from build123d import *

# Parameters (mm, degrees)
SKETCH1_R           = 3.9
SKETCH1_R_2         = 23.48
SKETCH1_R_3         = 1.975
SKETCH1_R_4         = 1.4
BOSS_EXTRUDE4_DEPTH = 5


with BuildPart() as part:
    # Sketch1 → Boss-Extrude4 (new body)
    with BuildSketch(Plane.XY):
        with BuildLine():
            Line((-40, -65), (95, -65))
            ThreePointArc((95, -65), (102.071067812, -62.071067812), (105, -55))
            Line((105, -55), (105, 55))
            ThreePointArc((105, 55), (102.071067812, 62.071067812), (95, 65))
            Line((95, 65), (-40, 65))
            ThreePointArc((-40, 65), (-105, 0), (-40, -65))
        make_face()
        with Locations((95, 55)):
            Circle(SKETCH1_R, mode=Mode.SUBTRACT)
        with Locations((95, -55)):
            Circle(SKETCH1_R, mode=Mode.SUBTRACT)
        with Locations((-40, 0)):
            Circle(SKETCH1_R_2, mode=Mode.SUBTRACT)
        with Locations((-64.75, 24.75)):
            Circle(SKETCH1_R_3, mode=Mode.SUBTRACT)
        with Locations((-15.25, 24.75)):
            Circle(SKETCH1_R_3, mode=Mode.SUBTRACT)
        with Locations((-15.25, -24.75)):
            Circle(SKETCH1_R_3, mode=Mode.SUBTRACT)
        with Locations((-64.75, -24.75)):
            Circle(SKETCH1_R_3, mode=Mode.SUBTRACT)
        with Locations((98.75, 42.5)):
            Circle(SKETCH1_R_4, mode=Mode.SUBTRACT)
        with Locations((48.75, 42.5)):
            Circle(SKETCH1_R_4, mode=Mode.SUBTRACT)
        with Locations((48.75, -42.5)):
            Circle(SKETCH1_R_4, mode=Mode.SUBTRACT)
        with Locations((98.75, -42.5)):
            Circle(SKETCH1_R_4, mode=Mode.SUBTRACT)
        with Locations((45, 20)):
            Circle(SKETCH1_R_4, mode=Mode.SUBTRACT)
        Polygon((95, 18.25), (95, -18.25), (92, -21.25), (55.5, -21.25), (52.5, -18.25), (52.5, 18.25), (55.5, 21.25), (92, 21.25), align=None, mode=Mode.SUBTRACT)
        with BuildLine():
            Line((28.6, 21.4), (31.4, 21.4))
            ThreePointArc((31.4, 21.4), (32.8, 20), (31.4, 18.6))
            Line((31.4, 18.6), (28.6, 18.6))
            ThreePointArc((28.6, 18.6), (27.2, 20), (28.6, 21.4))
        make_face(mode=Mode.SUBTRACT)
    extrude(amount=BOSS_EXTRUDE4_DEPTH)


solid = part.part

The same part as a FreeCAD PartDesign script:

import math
import FreeCAD as App
import Part
import Sketcher

doc = App.newDocument("Part")
params = doc.addObject("Spreadsheet::Sheet", "Params")
for row, (alias, value) in enumerate([
    ("sketch1_radius", "10 mm"),
    ("sketch1_radius2", "65 mm"),
    ("sketch1_diameter", "2.8 mm"),
    ("sketch1_diameter2", "7.8 mm"),
    ("sketch1_diameter3", "3.95 mm"),
    ("pad1_length", "5 mm"),
], start=1):
    params.set(f"A{row}", alias)
    params.set(f"B{row}", "=" + value)
    params.setAlias(f"B{row}", alias)

body = doc.addObject("PartDesign::Body", "Body")

sketch1 = body.newObject("Sketcher::SketchObject", "Sketch")
sketch1.AttachmentSupport = (doc.getObject("XY_Plane"), [""])
sketch1.MapMode = "FlatFace"
sketch1.addGeometry(Part.LineSegment(App.Vector(-40, -65, 0), App.Vector(95, -65, 0)), False)
sketch1.addGeometry(Part.ArcOfCircle(Part.Circle(App.Vector(95, -55, 0), App.Vector(0, 0, 1), 10), math.radians(-90), math.radians(0)), False)
sketch1.addGeometry(Part.LineSegment(App.Vector(105, -55, 0), App.Vector(105, 55, 0)), False)
sketch1.addGeometry(Part.ArcOfCircle(Part.Circle(App.Vector(95, 55, 0), App.Vector(0, 0, 1), 10), math.radians(0), math.radians(90)), False)
sketch1.addGeometry(Part.LineSegment(App.Vector(95, 65, 0), App.Vector(-40, 65, 0)), False)
sketch1.addGeometry(Part.ArcOfCircle(Part.Circle(App.Vector(-40, 0, 0), App.Vector(0, 0, 1), 65), math.radians(90), math.radians(270)), False)
sketch1.addGeometry(Part.Circle(App.Vector(-64.8, -24.8, 0), App.Vector(0, 0, 1), 2), False)
sketch1.addGeometry(Part.Circle(App.Vector(-40, 0, 0), App.Vector(0, 0, 1), 23.5), False)
sketch1.addGeometry(Part.Circle(App.Vector(-15.2, -24.8, 0), App.Vector(0, 0, 1), 2), False)
sketch1.addGeometry(Part.Circle(App.Vector(48.8, -42.5, 0), App.Vector(0, 0, 1), 1.4), False)
sketch1.addGeometry(Part.Circle(App.Vector(95, -55, 0), App.Vector(0, 0, 1), 3.9), False)
sketch1.addGeometry(Part.Circle(App.Vector(98.8, -42.5, 0), App.Vector(0, 0, 1), 1.4), False)
sketch1.addGeometry(Part.LineSegment(App.Vector(92, 21.2, 0), App.Vector(95, 18.2, 0)), False)
sketch1.addGeometry(Part.LineSegment(App.Vector(95, 18.2, 0), App.Vector(95, -18.2, 0)), False)
sketch1.addGeometry(Part.LineSegment(App.Vector(95, -18.2, 0), App.Vector(92, -21.2, 0)), False)
sketch1.addGeometry(Part.LineSegment(App.Vector(92, -21.2, 0), App.Vector(55.5, -21.2, 0)), False)
sketch1.addGeometry(Part.LineSegment(App.Vector(55.5, -21.2, 0), App.Vector(52.5, -18.2, 0)), False)
sketch1.addGeometry(Part.LineSegment(App.Vector(52.5, -18.2, 0), App.Vector(52.5, 18.2, 0)), False)
sketch1.addGeometry(Part.LineSegment(App.Vector(52.5, 18.2, 0), App.Vector(55.5, 21.2, 0)), False)
sketch1.addGeometry(Part.LineSegment(App.Vector(55.5, 21.2, 0), App.Vector(92, 21.2, 0)), False)
sketch1.addGeometry(Part.Circle(App.Vector(-64.8, 24.8, 0), App.Vector(0, 0, 1), 2), False)
sketch1.addGeometry(Part.Circle(App.Vector(-15.2, 24.8, 0), App.Vector(0, 0, 1), 2), False)
sketch1.addGeometry(Part.ArcOfCircle(Part.Circle(App.Vector(28.6, 20, 0), App.Vector(0, 0, 1), 1.4), math.radians(90), math.radians(270)), False)
sketch1.addGeometry(Part.LineSegment(App.Vector(28.6, 21.4, 0), App.Vector(31.4, 21.4, 0)), False)
sketch1.addGeometry(Part.ArcOfCircle(Part.Circle(App.Vector(31.4, 20, 0), App.Vector(0, 0, 1), 1.4), math.radians(-90), math.radians(90)), False)
sketch1.addGeometry(Part.LineSegment(App.Vector(31.4, 18.6, 0), App.Vector(28.6, 18.6, 0)), False)
sketch1.addGeometry(Part.Circle(App.Vector(45, 20, 0), App.Vector(0, 0, 1), 1.4), False)
sketch1.addGeometry(Part.Circle(App.Vector(48.8, 42.5, 0), App.Vector(0, 0, 1), 1.4), False)
sketch1.addGeometry(Part.Circle(App.Vector(98.8, 42.5, 0), App.Vector(0, 0, 1), 1.4), False)
sketch1.addGeometry(Part.Circle(App.Vector(95, 55, 0), App.Vector(0, 0, 1), 3.9), False)
sketch1.addConstraint(Sketcher.Constraint("Tangent", 0, 2, 1, 1))
sketch1.addConstraint(Sketcher.Constraint("Tangent", 1, 2, 2, 1))
sketch1.addConstraint(Sketcher.Constraint("Tangent", 2, 2, 3, 1))
sketch1.addConstraint(Sketcher.Constraint("Tangent", 3, 2, 4, 1))
sketch1.addConstraint(Sketcher.Constraint("Tangent", 4, 2, 5, 1))
sketch1.addConstraint(Sketcher.Constraint("Tangent", 5, 2, 0, 1))
sketch1.addConstraint(Sketcher.Constraint("Coincident", 12, 2, 13, 1))
sketch1.addConstraint(Sketcher.Constraint("Coincident", 13, 2, 14, 1))
sketch1.addConstraint(Sketcher.Constraint("Coincident", 14, 2, 15, 1))
sketch1.addConstraint(Sketcher.Constraint("Coincident", 15, 2, 16, 1))
sketch1.addConstraint(Sketcher.Constraint("Coincident", 16, 2, 17, 1))
sketch1.addConstraint(Sketcher.Constraint("Coincident", 17, 2, 18, 1))
sketch1.addConstraint(Sketcher.Constraint("Coincident", 18, 2, 19, 1))
sketch1.addConstraint(Sketcher.Constraint("Coincident", 19, 2, 12, 1))
sketch1.addConstraint(Sketcher.Constraint("Tangent", 22, 1, 23, 1))
sketch1.addConstraint(Sketcher.Constraint("Tangent", 23, 2, 24, 2))
sketch1.addConstraint(Sketcher.Constraint("Tangent", 24, 1, 25, 1))
sketch1.addConstraint(Sketcher.Constraint("Tangent", 25, 2, 22, 2))
sketch1.addConstraint(Sketcher.Constraint("Horizontal", 0))
sketch1.addConstraint(Sketcher.Constraint("Vertical", 2))
sketch1.addConstraint(Sketcher.Constraint("Horizontal", 4))
sketch1.addConstraint(Sketcher.Constraint("Vertical", 13))
sketch1.addConstraint(Sketcher.Constraint("Horizontal", 15))
sketch1.addConstraint(Sketcher.Constraint("Vertical", 17))
sketch1.addConstraint(Sketcher.Constraint("Horizontal", 19))
sketch1.addConstraint(Sketcher.Constraint("Horizontal", 23))
sketch1.addConstraint(Sketcher.Constraint("Horizontal", 25))
sketch1.addConstraint(Sketcher.Constraint("Coincident", 7, 3, 5, 3))
sketch1.addConstraint(Sketcher.Constraint("Coincident", 10, 3, 1, 3))
sketch1.addConstraint(Sketcher.Constraint("Coincident", 29, 3, 3, 3))
sketch1.addConstraint(Sketcher.Constraint("Equal", 1, 3))
sketch1.addConstraint(Sketcher.Constraint("Equal", 6, 8))
sketch1.addConstraint(Sketcher.Constraint("Equal", 9, 11))
sketch1.addConstraint(Sketcher.Constraint("Equal", 8, 20))
sketch1.addConstraint(Sketcher.Constraint("Equal", 20, 21))
sketch1.addConstraint(Sketcher.Constraint("Equal", 11, 22))
sketch1.addConstraint(Sketcher.Constraint("Equal", 24, 26))
sketch1.addConstraint(Sketcher.Constraint("Equal", 26, 27))
sketch1.addConstraint(Sketcher.Constraint("Equal", 27, 28))
sketch1.addConstraint(Sketcher.Constraint("Equal", 10, 29))
sketch1.addConstraint(Sketcher.Constraint("Symmetric", 6, 3, 20, 3, -1))
sketch1.addConstraint(Sketcher.Constraint("Symmetric", 8, 3, 21, 3, -1))
sketch1.addConstraint(Sketcher.Constraint("Symmetric", 9, 3, 27, 3, -1))
sketch1.addConstraint(Sketcher.Constraint("Symmetric", 11, 3, 28, 3, -1))
sketch1.addConstraint(Sketcher.Constraint("Symmetric", 15, 2, 18, 2, -1))
sketch1.addConstraint(Sketcher.Constraint("PointOnObject", 5, 3, -1))
sketch1.addConstraint(Sketcher.Constraint("Perpendicular", 12, 14))
sketch1.addConstraint(Sketcher.Constraint("Perpendicular", 14, 16))
sketch1.addConstraint(Sketcher.Constraint("Perpendicular", 16, 18))
sketch1.addConstraint(Sketcher.Constraint("Horizontal", 6, 3, 8, 3))
sketch1.addConstraint(Sketcher.Constraint("Horizontal", 9, 3, 11, 3))
sketch1.addConstraint(Sketcher.Constraint("Horizontal", 24, 3, 26, 3))
sketch1.addConstraint(Sketcher.Constraint("Horizontal", 13, 2, 16, 2))
sketch1.addConstraint(Sketcher.Constraint("Horizontal", 12, 2, 17, 2))
sketch1.addConstraint(Sketcher.Constraint("Vertical", 3, 2, 12, 2))
sketch1.addConstraint(Sketcher.Constraint("Vertical", 14, 2, 19, 2))
sketch1.addConstraint(Sketcher.Constraint("Equal", 19, 13))
sketch1.addConstraint(Sketcher.Constraint("Radius", 1, 10.0))
sketch1.addConstraint(Sketcher.Constraint("Radius", 5, 65.0))
sketch1.addConstraint(Sketcher.Constraint("Diameter", 9, 2.8))
sketch1.addConstraint(Sketcher.Constraint("Diameter", 10, 7.8))
sketch1.addConstraint(Sketcher.Constraint("Diameter", 6, 3.95))
sketch1.addConstraint(Sketcher.Constraint("Diameter", 7, 46.96))
sketch1.addConstraint(Sketcher.Constraint("DistanceX", 0, 1, 0, 2, 135.0))
sketch1.addConstraint(Sketcher.Constraint("DistanceX", 15, 2, 15, 1, 36.5))
sketch1.addConstraint(Sketcher.Constraint("DistanceX", 23, 1, 23, 2, 2.8))
sketch1.addConstraint(Sketcher.Constraint("DistanceX", -1, 1, 1, 3, 95.0))
sketch1.addConstraint(Sketcher.Constraint("DistanceY", -1, 1, 22, 3, 20.0))
sketch1.addConstraint(Sketcher.Constraint("DistanceX", -1, 1, 26, 3, 45.0))
sketch1.addConstraint(Sketcher.Constraint("DistanceX", -1, 1, 14, 2, 92.0))
sketch1.addConstraint(Sketcher.Constraint("DistanceX", 8, 3, 9, 3, 64.0))
sketch1.addConstraint(Sketcher.Constraint("DistanceX", 9, 3, 11, 3, 50.0))
sketch1.addConstraint(Sketcher.Constraint("DistanceY", 9, 3, -1, 1, 42.5))
sketch1.addConstraint(Sketcher.Constraint("DistanceX", -1, 1, 22, 3, 28.6))
sketch1.addConstraint(Sketcher.Constraint("DistanceX", 6, 3, 8, 3, 49.5))
sketch1.addConstraint(Sketcher.Constraint("DistanceY", 6, 3, 20, 3, 49.5))
sketch1.addConstraint(Sketcher.Constraint("DistanceX", 6, 3, -1, 1, 64.75))
sketch1.setExpression("Constraints[57]", "Params.sketch1_radius")
sketch1.setExpression("Constraints[58]", "Params.sketch1_radius2")
sketch1.setExpression("Constraints[59]", "Params.sketch1_diameter")
sketch1.setExpression("Constraints[60]", "Params.sketch1_diameter2")
sketch1.setExpression("Constraints[61]", "Params.sketch1_diameter3")
pad1 = body.newObject("PartDesign::Pad", "Pad")
pad1.Profile = sketch1
pad1.setExpression("Length", "Params.pad1_length")

doc.recompute()
